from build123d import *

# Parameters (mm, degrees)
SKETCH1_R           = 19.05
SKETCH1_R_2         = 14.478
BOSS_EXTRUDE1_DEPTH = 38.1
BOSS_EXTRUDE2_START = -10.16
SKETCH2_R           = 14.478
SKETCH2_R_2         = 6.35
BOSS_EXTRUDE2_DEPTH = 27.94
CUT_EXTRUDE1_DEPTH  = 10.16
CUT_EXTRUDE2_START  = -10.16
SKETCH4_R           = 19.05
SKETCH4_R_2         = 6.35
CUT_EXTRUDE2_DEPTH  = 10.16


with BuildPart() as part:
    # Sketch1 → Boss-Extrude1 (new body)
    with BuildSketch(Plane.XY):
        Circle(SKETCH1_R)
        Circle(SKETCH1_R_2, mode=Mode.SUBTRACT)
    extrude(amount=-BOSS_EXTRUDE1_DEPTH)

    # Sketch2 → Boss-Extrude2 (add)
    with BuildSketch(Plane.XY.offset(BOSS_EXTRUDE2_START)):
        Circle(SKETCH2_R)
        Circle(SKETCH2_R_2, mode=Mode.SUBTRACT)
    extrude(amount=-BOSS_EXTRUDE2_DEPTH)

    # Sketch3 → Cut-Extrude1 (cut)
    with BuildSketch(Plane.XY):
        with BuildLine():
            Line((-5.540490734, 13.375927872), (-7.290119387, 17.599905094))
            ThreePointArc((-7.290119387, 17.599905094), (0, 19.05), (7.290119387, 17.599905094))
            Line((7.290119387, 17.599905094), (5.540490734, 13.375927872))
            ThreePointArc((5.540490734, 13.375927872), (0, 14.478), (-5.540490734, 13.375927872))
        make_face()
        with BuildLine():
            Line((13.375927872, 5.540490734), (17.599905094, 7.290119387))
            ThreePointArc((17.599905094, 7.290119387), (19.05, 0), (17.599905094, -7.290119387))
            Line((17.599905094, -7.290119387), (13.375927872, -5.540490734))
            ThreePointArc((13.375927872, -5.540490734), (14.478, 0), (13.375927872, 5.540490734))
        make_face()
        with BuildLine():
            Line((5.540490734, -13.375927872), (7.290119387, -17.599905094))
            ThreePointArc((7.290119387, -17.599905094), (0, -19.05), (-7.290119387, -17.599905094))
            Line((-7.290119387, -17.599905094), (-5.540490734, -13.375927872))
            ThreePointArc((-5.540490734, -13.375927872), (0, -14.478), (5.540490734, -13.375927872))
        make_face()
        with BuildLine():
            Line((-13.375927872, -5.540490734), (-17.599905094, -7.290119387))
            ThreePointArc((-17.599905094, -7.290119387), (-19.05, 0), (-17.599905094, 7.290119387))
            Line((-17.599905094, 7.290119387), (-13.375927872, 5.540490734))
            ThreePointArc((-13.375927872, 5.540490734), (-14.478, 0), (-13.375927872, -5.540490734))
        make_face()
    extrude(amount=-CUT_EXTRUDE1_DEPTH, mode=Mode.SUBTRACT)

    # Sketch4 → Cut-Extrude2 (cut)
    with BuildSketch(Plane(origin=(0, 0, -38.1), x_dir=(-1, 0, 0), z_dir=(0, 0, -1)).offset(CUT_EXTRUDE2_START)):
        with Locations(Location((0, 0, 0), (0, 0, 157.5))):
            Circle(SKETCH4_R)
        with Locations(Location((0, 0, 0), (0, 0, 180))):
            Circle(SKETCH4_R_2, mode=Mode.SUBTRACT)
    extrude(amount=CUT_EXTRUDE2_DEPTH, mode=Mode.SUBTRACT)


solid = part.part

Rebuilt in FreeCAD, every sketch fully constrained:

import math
import FreeCAD as App
import Part
import Sketcher
from FreeCAD import Vector
Q = App.Units.Quantity

doc = App.newDocument("Part")
body = doc.addObject("PartDesign::Body", "Body")

# Sketch on XY plane
sketch1 = doc.addObject("Sketcher::SketchObject", "Sketch")
body.addObject(sketch1)
sketch1.AttachmentSupport = (doc.XY_Plane, [""])
sketch1.MapMode = "FlatFace"
sketch1.addGeometry([
    Part.Circle(Vector(0, 0, 0), Vector(0, 0, 1), 19),
    Part.Circle(Vector(0, 0, 0), Vector(0, 0, 1), 14),
], False)
sketch1.addConstraint([
    Sketcher.Constraint("Coincident", 0, 3, -1, 1),
    Sketcher.Constraint("Coincident", 1, 3, -1, 1),
    Sketcher.Constraint("Diameter", 0, Q("1.5 in")),
    Sketcher.Constraint("Diameter", 1, Q("1.14 in")),
])
pad1 = doc.addObject("PartDesign::Pad", "Pad")
body.addObject(pad1)
pad1.Profile = sketch1
pad1.Length = Q("1.5 in")
pad1.Reversed = True

# Sketch on XY plane
sketch2 = doc.addObject("Sketcher::SketchObject", "Sketch001")
body.addObject(sketch2)
sketch2.AttachmentSupport = (doc.XY_Plane, [""])
sketch2.MapMode = "FlatFace"
sketch2.AttachmentOffset = App.Placement(Vector(0, 0, -0.4 * 25.4), App.Rotation())
sketch2.addGeometry([
    Part.Circle(Vector(0, 0, 0), Vector(0, 0, 1), 14),
    Part.Circle(Vector(0, 0, 0), Vector(0, 0, 1), 6),
], False)
sketch2.addConstraint([
    Sketcher.Constraint("Coincident", 0, 3, -1, 1),
    Sketcher.Constraint("Coincident", 1, 3, -1, 1),
    Sketcher.Constraint("Diameter", 1, Q("0.5 in")),
    Sketcher.Constraint("Diameter", 0, Q("1.14 in")),
])
pad2 = doc.addObject("PartDesign::Pad", "Pad001")
body.addObject(pad2)
pad2.Profile = sketch2
pad2.Length = Q("1.1 in")
pad2.Reversed = True

# Sketch on XY plane
sketch3 = doc.addObject("Sketcher::SketchObject", "Sketch002")
body.addObject(sketch3)
sketch3.AttachmentSupport = (doc.XY_Plane, [""])
sketch3.MapMode = "FlatFace"
sketch3.addGeometry([
    Part.LineSegment(Vector(-7.3, 17.6, 0), Vector(-5.5, 13.4, 0)),  # 0
    Part.ArcOfCircle(Part.Circle(Vector(0, 0, 0), Vector(0, 0, 1), 14.5), math.radians(68), math.radians(112)),  # 1
    Part.LineSegment(Vector(5.5, 13.4, 0), Vector(7.3, 17.6, 0)),  # 2
    Part.ArcOfCircle(Part.Circle(Vector(0, 0, 0), Vector(0, 0, 1), 19), math.radians(67), math.radians(113)),  # 3
    Part.LineSegment(Vector(17.6, 7.3, 0), Vector(13.4, 5.5, 0)),  # 4
    Part.ArcOfCircle(Part.Circle(Vector(0, 0, 0), Vector(0, 0, 1), 14.5), math.radians(-22), math.radians(22)),  # 5
    Part.LineSegment(Vector(13.4, -5.5, 0), Vector(17.6, -7.3, 0)),  # 6
    Part.ArcOfCircle(Part.Circle(Vector(0, 0, 0), Vector(0, 0, 1), 19), math.radians(-23), math.radians(23)),  # 7
    Part.LineSegment(Vector(7.3, -17.6, 0), Vector(5.5, -13.4, 0)),  # 8
    Part.ArcOfCircle(Part.Circle(Vector(0, 0, 0), Vector(0, 0, 1), 14.5), math.radians(-112), math.radians(-68)),  # 9
    Part.LineSegment(Vector(-5.5, -13.4, 0), Vector(-7.3, -17.6, 0)),  # 10
    Part.ArcOfCircle(Part.Circle(Vector(0, 0, 0), Vector(0, 0, 1), 19), math.radians(-113), math.radians(-67)),  # 11
    Part.LineSegment(Vector(-17.6, -7.3, 0), Vector(-13.4, -5.5, 0)),  # 12
    Part.ArcOfCircle(Part.Circle(Vector(0, 0, 0), Vector(0, 0, 1), 14.5), math.radians(158), math.radians(202)),  # 13
    Part.LineSegment(Vector(-13.4, 5.5, 0), Vector(-17.6, 7.3, 0)),  # 14
    Part.ArcOfCircle(Part.Circle(Vector(0, 0, 0), Vector(0, 0, 1), 19), math.radians(157), math.radians(203)),  # 15
], False)
sketch3.addConstraint([
    Sketcher.Constraint("Coincident", 0, 2, 1, 2),
    Sketcher.Constraint("Coincident", 1, 1, 2, 1),
    Sketcher.Constraint("Coincident", 2, 2, 3, 1),
    Sketcher.Constraint("Coincident", 3, 2, 0, 1),
    Sketcher.Constraint("Coincident", 4, 2, 5, 2),
    Sketcher.Constraint("Coincident", 5, 1, 6, 1),
    Sketcher.Constraint("Coincident", 6, 2, 7, 1),
    Sketcher.Constraint("Coincident", 7, 2, 4, 1),
    Sketcher.Constraint("Coincident", 8, 2, 9, 2),
    Sketcher.Constraint("Coincident", 9, 1, 10, 1),
    Sketcher.Constraint("Coincident", 10, 2, 11, 1),
    Sketcher.Constraint("Coincident", 11, 2, 8, 1),
    Sketcher.Constraint("Coincident", 12, 2, 13, 2),
    Sketcher.Constraint("Coincident", 13, 1, 14, 1),
    Sketcher.Constraint("Coincident", 14, 2, 15, 1),
    Sketcher.Constraint("Coincident", 15, 2, 12, 1),
    Sketcher.Constraint("Coincident", 1, 3, -1, 1),
    Sketcher.Constraint("Coincident", 3, 3, -1, 1),
    Sketcher.Constraint("Coincident", 5, 3, -1, 1),
    Sketcher.Constraint("Coincident", 7, 3, -1, 1),
    Sketcher.Constraint("Coincident", 9, 3, -1, 1),
    Sketcher.Constraint("Coincident", 11, 3, -1, 1),
    Sketcher.Constraint("Coincident", 13, 3, -1, 1),
    Sketcher.Constraint("Coincident", 15, 3, -1, 1),
    Sketcher.Constraint("Equal", 1, 5),
    Sketcher.Constraint("Equal", 3, 7),
    Sketcher.Constraint("Equal", 5, 9),
    Sketcher.Constraint("Equal", 7, 11),
    Sketcher.Constraint("Equal", 9, 13),
    Sketcher.Constraint("Equal", 11, 15),
    Sketcher.Constraint("Perpendicular", 0, 4),
    Sketcher.Constraint("Perpendicular", 2, 6),
    Sketcher.Constraint("Perpendicular", 4, 8),
    Sketcher.Constraint("Perpendicular", 6, 10),
    Sketcher.Constraint("Perpendicular", 8, 12),
    Sketcher.Constraint("Perpendicular", 10, 14),
    Sketcher.Constraint("Horizontal", 0, 2, 1, 1),
    Sketcher.Constraint("Horizontal", 2, 2, 3, 2),
    Sketcher.Constraint("Horizontal", 8, 2, 9, 1),
    Sketcher.Constraint("Horizontal", 5, 1, 12, 2),
    Sketcher.Constraint("Horizontal", 4, 2, 13, 1),
    Sketcher.Constraint("Vertical", 4, 2, 5, 1),
    Sketcher.Constraint("Vertical", 1, 1, 8, 2),
    Sketcher.Constraint("Radius", 1, Q("0.57 in")),
    Sketcher.Constraint("Radius", 3, Q("0.75 in")),
    Sketcher.Constraint("Angle", 0, Q("-67.5 deg")),
    Sketcher.Constraint("DistanceX", 0, 2, -1, 1, 5.540491),
    Sketcher.Constraint("DistanceY", -1, 1, 4, 2, 5.540491),
])
pocket1 = doc.addObject("PartDesign::Pocket", "Pocket")
body.addObject(pocket1)
pocket1.Profile = sketch3
pocket1.Length = Q("0.4 in")

# Sketch on XY plane
sketch4 = doc.addObject("Sketcher::SketchObject", "Sketch003")
body.addObject(sketch4)
sketch4.AttachmentSupport = (doc.XY_Plane, [""])
sketch4.MapMode = "FlatFace"
sketch4.AttachmentOffset = App.Placement(Vector(0, 0, -1.1 * 25.4), App.Rotation())
sketch4.addGeometry([
    Part.Circle(Vector(0, 0, 0), Vector(0, 0, 1), 19),
    Part.Circle(Vector(0, 0, 0), Vector(0, 0, 1), 6),
], False)
sketch4.addConstraint([
    Sketcher.Constraint("Coincident", 0, 3, -1, 1),
    Sketcher.Constraint("Coincident", 1, 3, -1, 1),
    Sketcher.Constraint("Diameter", 0, Q("1.5 in")),
    Sketcher.Constraint("Diameter", 1, Q("0.5 in")),
])
pocket2 = doc.addObject("PartDesign::Pocket", "Pocket001")
body.addObject(pocket2)
pocket2.Profile = sketch4
pocket2.Length = Q("0.4 in")

doc.recompute()
